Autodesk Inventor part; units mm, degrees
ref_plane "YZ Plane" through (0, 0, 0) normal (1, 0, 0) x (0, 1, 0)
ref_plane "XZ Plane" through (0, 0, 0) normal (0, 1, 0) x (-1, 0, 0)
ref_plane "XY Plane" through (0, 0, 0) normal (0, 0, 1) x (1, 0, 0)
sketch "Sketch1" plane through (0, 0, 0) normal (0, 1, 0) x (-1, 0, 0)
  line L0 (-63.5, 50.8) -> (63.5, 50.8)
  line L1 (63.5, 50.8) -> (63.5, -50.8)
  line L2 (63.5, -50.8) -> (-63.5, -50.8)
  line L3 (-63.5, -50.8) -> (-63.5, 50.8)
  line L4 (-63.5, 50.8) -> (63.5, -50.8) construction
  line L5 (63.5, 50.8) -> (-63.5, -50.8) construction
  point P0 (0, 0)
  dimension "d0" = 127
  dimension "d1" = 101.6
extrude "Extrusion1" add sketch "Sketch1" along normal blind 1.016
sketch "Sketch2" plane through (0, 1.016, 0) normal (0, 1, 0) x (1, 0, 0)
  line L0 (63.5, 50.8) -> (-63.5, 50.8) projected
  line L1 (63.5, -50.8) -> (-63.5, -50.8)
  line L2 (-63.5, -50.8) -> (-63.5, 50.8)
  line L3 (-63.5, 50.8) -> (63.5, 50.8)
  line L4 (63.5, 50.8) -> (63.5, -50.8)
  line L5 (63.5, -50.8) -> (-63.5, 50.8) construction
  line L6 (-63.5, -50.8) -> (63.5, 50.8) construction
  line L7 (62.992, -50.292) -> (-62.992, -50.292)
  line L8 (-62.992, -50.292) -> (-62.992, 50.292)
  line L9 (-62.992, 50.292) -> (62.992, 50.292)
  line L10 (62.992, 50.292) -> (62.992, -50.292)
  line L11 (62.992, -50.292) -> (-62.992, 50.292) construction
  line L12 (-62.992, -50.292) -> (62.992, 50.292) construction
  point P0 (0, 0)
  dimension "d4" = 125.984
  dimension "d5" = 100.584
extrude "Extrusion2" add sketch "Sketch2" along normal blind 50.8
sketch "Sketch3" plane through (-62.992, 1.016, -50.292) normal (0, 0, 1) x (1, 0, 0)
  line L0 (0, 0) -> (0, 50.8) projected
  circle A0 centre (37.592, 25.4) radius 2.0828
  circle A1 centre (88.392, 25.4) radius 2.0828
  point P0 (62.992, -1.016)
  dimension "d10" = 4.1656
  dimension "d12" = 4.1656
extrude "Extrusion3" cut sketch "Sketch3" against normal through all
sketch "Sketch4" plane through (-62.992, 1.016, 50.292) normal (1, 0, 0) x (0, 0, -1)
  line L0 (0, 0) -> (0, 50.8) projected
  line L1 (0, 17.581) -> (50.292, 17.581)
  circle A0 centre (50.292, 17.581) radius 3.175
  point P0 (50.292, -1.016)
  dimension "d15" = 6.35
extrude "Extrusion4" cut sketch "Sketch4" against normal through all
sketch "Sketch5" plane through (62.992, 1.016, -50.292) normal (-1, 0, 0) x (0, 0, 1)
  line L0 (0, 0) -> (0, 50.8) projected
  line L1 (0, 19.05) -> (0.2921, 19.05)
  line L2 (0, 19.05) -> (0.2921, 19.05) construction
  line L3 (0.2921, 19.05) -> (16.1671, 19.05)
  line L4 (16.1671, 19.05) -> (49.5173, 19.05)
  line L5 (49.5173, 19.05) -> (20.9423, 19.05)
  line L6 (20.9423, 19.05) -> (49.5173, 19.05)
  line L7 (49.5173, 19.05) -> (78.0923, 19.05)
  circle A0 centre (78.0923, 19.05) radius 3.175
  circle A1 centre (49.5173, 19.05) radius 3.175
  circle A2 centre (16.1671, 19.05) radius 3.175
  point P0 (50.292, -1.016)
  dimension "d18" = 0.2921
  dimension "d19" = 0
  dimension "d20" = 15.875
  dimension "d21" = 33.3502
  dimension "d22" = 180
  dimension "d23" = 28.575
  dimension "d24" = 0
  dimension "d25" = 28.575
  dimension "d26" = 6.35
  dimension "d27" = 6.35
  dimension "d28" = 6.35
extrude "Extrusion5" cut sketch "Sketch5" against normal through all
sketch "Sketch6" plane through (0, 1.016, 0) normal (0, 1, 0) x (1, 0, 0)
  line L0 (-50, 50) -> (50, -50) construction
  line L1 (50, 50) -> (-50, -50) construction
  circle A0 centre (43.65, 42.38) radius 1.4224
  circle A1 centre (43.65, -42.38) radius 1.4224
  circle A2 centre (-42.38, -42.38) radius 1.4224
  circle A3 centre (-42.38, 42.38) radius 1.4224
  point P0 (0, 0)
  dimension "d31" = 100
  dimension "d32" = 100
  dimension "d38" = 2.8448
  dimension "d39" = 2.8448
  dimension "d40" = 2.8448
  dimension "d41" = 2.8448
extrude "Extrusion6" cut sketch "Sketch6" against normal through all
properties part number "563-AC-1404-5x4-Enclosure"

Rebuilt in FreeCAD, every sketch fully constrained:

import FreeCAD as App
import Part
import Sketcher

V = App.Vector
Q = App.Units.Quantity


def add_polygon(sketch, points):
    """Adds a closed chain of lines whose ends are joined by coincident constraints."""
    first, n = sketch.GeometryCount, len(points)
    for a, b in zip(points, points[1:] + points[:1]):
        sketch.addGeometry(Part.LineSegment(App.Vector(*a, 0), App.Vector(*b, 0)), False)
    for i in range(n):
        sketch.addConstraint(Sketcher.Constraint("Coincident", first + i, 2, first + (i + 1) % n, 1))

doc = App.newDocument("Part")
body = doc.addObject("PartDesign::Body", "Body")

sketch1 = doc.addObject("Sketcher::SketchObject", "Sketch")
body.addObject(sketch1)
sketch1.AttachmentSupport = (doc.XZ_Plane, [""])
sketch1.MapMode = "FlatFace"
add_polygon(sketch1, [(-63.5, 50.8), (63.5, 50.8), (63.5, -50.8), (-63.5, -50.8)])
sketch1.addConstraint([
    Sketcher.Constraint("Horizontal", 0),
    Sketcher.Constraint("Vertical", 1),
    Sketcher.Constraint("Horizontal", 2),
    Sketcher.Constraint("Vertical", 3),
    Sketcher.Constraint("Symmetric", 0, 2, 2, 2, -1, 1),
    Sketcher.Constraint("DistanceX", 0, 1, 0, 2, Q("5 in")),
    Sketcher.Constraint("DistanceY", 1, 2, 1, 1, Q("4 in")),
])
pad1 = doc.addObject("PartDesign::Pad", "Pad")
body.addObject(pad1)
pad1.Profile = sketch1
pad1.Length = Q("0.04 in")
pad1.Reversed = True

sketch2 = doc.addObject("Sketcher::SketchObject", "Sketch001")
body.addObject(sketch2)
sketch2.AttachmentSupport = (doc.XZ_Plane, [""])
sketch2.MapMode = "FlatFace"
sketch2.AttachmentOffset = App.Placement(V(0, 0, -0.04 * 25.4), App.Rotation())
add_polygon(sketch2, [(63.5, 50.8), (63.5, -50.8), (-63.5, -50.8), (-63.5, 50.8)])
add_polygon(sketch2, [(62.992, -50.292), (62.992, 50.292), (-62.992, 50.292), (-62.992, -50.292)])
sketch2.addConstraint([
    Sketcher.Constraint("Vertical", 0),
    Sketcher.Constraint("Horizontal", 1),
    Sketcher.Constraint("Vertical", 2),
    Sketcher.Constraint("Horizontal", 3),
    Sketcher.Constraint("Vertical", 4),
    Sketcher.Constraint("Horizontal", 5),
    Sketcher.Constraint("Vertical", 6),
    Sketcher.Constraint("Horizontal", 7),
    Sketcher.Constraint("Symmetric", 0, 2, 2, 2, -1, 1),
    Sketcher.Constraint("Symmetric", 4, 2, 6, 2, -1, 1),
    Sketcher.Constraint("DistanceX", 5, 2, 5, 1, Q("4.96 in")),
    Sketcher.Constraint("DistanceY", 4, 1, 4, 2, Q("3.96 in")),
    Sketcher.Constraint("DistanceX", 1, 2, 1, 1, Q("5 in")),
    Sketcher.Constraint("DistanceY", 0, 2, 0, 1, Q("4 in")),
])
pad2 = doc.addObject("PartDesign::Pad", "Pad001")
body.addObject(pad2)
pad2.Profile = sketch2
pad2.Length = Q("2 in")
pad2.Reversed = True

sketch3 = doc.addObject("Sketcher::SketchObject", "Sketch002")
body.addObject(sketch3)
sketch3.AttachmentSupport = (doc.XY_Plane, [""])
sketch3.MapMode = "FlatFace"
sketch3.AttachmentOffset = App.Placement(V(0, 0, -1.98 * 25.4), App.Rotation())
sketch3.addGeometry([
    Part.Circle(V(-25.4, 26.416, 0), V(0, 0, 1), 2.0828),
    Part.Circle(V(25.4, 26.416, 0), V(0, 0, 1), 2.0828),
], False)
sketch3.addConstraint([
    Sketcher.Constraint("Equal", 0, 1),
    Sketcher.Constraint("Symmetric", 0, 3, 1, 3, -2),
    Sketcher.Constraint("Diameter", 0, Q("0.164 in")),
    Sketcher.Constraint("DistanceX", 0, 3, -1, 1, Q("1 in")),
    Sketcher.Constraint("DistanceY", -1, 1, 0, 3, Q("1.04 in")),
])
pocket1 = doc.addObject("PartDesign::Pocket", "Pocket")
body.addObject(pocket1)
pocket1.Profile = sketch3
pocket1.Type = "ThroughAll"

sketch4 = doc.addObject("Sketcher::SketchObject", "Sketch003")
body.addObject(sketch4)
sketch4.AttachmentSupport = (doc.YZ_Plane, [""])
sketch4.MapMode = "FlatFace"
sketch4.AttachmentOffset = App.Placement(V(0, 0, -2.48 * 25.4), App.Rotation())
sketch4.addGeometry(Part.Circle(V(18.597, 0, 0), V(0, 0, 1), 3.175), False)
sketch4.addConstraint([
    Sketcher.Constraint("PointOnObject", 0, 3, -1),
    Sketcher.Constraint("Diameter", 0, Q("0.25 in")),
    Sketcher.Constraint("DistanceX", -1, 1, 0, 3, Q("18.597 mm")),
])
pocket2 = doc.addObject("PartDesign::Pocket", "Pocket001")
body.addObject(pocket2)
pocket2.Profile = sketch4
pocket2.Type = "ThroughAll"

sketch5 = doc.addObject("Sketcher::SketchObject", "Sketch004")
body.addObject(sketch5)
sketch5.AttachmentSupport = (doc.YZ_Plane, [""])
sketch5.MapMode = "FlatFace"
sketch5.AttachmentOffset = App.Placement(V(0, 0, 2.48 * 25.4), App.Rotation())
sketch5.addGeometry([
    Part.Circle(V(20.066, -34.1249, 0), V(0, 0, 1), 3.175),
    Part.Circle(V(20.066, 27.8003, 0), V(0, 0, 1), 3.175),
    Part.Circle(V(20.066, -0.7747, 0), V(0, 0, 1), 3.175),
], False)
sketch5.addConstraint([
    Sketcher.Constraint("Equal", 0, 1),
    Sketcher.Constraint("Equal", 1, 2),
    Sketcher.Constraint("Vertical", 0, 3, 1, 3),
    Sketcher.Constraint("Vertical", 1, 3, 2, 3),
    Sketcher.Constraint("Diameter", 0, Q("0.25 in")),
    Sketcher.Constraint("DistanceY", 2, 3, 1, 3, Q("1.125 in")),
    Sketcher.Constraint("DistanceY", 0, 3, 2, 3, Q("1.313 in")),
    Sketcher.Constraint("DistanceX", -1, 1, 0, 3, Q("0.79 in")),
    Sketcher.Constraint("DistanceY", 0, 3, -1, 1, Q("1.3435 in")),
])
pocket3 = doc.addObject("PartDesign::Pocket", "Pocket002")
body.addObject(pocket3)
pocket3.Profile = sketch5
pocket3.Type = "ThroughAll"
pocket3.Reversed = True

sketch6 = doc.addObject("Sketcher::SketchObject", "Sketch005")
body.addObject(sketch6)
sketch6.AttachmentSupport = (doc.XZ_Plane, [""])
sketch6.MapMode = "FlatFace"
sketch6.AttachmentOffset = App.Placement(V(0, 0, -0.04 * 25.4), App.Rotation())
sketch6.addGeometry([
    Part.Circle(V(43.65, -42.38, 0), V(0, 0, 1), 1.4224),
    Part.Circle(V(43.65, 42.38, 0), V(0, 0, 1), 1.4224),
    Part.Circle(V(-42.38, 42.38, 0), V(0, 0, 1), 1.4224),
    Part.Circle(V(-42.38, -42.38, 0), V(0, 0, 1), 1.4224),
], False)
sketch6.addConstraint([
    Sketcher.Constraint("Equal", 0, 1),
    Sketcher.Constraint("Equal", 1, 2),
    Sketcher.Constraint("Equal", 2, 3),
    Sketcher.Constraint("Symmetric", 0, 3, 1, 3, -1),
    Sketcher.Constraint("Symmetric", 2, 3, 3, 3, -1),
    Sketcher.Constraint("Horizontal", 1, 3, 2, 3),
    Sketcher.Constraint("Diameter", 0, Q("0.112 in")),
    Sketcher.Constraint("DistanceY", 0, 3, 1, 3, Q("3.337 in")),
    Sketcher.Constraint("DistanceX", 2, 3, 1, 3, Q("3.387 in")),
    Sketcher.Constraint("DistanceX", -1, 1, 0, 3, Q("1.7185 in")),
])
pocket4 = doc.addObject("PartDesign::Pocket", "Pocket003")
body.addObject(pocket4)
pocket4.Profile = sketch6
pocket4.Type = "ThroughAll"
pocket4.Reversed = True

doc.recompute()
